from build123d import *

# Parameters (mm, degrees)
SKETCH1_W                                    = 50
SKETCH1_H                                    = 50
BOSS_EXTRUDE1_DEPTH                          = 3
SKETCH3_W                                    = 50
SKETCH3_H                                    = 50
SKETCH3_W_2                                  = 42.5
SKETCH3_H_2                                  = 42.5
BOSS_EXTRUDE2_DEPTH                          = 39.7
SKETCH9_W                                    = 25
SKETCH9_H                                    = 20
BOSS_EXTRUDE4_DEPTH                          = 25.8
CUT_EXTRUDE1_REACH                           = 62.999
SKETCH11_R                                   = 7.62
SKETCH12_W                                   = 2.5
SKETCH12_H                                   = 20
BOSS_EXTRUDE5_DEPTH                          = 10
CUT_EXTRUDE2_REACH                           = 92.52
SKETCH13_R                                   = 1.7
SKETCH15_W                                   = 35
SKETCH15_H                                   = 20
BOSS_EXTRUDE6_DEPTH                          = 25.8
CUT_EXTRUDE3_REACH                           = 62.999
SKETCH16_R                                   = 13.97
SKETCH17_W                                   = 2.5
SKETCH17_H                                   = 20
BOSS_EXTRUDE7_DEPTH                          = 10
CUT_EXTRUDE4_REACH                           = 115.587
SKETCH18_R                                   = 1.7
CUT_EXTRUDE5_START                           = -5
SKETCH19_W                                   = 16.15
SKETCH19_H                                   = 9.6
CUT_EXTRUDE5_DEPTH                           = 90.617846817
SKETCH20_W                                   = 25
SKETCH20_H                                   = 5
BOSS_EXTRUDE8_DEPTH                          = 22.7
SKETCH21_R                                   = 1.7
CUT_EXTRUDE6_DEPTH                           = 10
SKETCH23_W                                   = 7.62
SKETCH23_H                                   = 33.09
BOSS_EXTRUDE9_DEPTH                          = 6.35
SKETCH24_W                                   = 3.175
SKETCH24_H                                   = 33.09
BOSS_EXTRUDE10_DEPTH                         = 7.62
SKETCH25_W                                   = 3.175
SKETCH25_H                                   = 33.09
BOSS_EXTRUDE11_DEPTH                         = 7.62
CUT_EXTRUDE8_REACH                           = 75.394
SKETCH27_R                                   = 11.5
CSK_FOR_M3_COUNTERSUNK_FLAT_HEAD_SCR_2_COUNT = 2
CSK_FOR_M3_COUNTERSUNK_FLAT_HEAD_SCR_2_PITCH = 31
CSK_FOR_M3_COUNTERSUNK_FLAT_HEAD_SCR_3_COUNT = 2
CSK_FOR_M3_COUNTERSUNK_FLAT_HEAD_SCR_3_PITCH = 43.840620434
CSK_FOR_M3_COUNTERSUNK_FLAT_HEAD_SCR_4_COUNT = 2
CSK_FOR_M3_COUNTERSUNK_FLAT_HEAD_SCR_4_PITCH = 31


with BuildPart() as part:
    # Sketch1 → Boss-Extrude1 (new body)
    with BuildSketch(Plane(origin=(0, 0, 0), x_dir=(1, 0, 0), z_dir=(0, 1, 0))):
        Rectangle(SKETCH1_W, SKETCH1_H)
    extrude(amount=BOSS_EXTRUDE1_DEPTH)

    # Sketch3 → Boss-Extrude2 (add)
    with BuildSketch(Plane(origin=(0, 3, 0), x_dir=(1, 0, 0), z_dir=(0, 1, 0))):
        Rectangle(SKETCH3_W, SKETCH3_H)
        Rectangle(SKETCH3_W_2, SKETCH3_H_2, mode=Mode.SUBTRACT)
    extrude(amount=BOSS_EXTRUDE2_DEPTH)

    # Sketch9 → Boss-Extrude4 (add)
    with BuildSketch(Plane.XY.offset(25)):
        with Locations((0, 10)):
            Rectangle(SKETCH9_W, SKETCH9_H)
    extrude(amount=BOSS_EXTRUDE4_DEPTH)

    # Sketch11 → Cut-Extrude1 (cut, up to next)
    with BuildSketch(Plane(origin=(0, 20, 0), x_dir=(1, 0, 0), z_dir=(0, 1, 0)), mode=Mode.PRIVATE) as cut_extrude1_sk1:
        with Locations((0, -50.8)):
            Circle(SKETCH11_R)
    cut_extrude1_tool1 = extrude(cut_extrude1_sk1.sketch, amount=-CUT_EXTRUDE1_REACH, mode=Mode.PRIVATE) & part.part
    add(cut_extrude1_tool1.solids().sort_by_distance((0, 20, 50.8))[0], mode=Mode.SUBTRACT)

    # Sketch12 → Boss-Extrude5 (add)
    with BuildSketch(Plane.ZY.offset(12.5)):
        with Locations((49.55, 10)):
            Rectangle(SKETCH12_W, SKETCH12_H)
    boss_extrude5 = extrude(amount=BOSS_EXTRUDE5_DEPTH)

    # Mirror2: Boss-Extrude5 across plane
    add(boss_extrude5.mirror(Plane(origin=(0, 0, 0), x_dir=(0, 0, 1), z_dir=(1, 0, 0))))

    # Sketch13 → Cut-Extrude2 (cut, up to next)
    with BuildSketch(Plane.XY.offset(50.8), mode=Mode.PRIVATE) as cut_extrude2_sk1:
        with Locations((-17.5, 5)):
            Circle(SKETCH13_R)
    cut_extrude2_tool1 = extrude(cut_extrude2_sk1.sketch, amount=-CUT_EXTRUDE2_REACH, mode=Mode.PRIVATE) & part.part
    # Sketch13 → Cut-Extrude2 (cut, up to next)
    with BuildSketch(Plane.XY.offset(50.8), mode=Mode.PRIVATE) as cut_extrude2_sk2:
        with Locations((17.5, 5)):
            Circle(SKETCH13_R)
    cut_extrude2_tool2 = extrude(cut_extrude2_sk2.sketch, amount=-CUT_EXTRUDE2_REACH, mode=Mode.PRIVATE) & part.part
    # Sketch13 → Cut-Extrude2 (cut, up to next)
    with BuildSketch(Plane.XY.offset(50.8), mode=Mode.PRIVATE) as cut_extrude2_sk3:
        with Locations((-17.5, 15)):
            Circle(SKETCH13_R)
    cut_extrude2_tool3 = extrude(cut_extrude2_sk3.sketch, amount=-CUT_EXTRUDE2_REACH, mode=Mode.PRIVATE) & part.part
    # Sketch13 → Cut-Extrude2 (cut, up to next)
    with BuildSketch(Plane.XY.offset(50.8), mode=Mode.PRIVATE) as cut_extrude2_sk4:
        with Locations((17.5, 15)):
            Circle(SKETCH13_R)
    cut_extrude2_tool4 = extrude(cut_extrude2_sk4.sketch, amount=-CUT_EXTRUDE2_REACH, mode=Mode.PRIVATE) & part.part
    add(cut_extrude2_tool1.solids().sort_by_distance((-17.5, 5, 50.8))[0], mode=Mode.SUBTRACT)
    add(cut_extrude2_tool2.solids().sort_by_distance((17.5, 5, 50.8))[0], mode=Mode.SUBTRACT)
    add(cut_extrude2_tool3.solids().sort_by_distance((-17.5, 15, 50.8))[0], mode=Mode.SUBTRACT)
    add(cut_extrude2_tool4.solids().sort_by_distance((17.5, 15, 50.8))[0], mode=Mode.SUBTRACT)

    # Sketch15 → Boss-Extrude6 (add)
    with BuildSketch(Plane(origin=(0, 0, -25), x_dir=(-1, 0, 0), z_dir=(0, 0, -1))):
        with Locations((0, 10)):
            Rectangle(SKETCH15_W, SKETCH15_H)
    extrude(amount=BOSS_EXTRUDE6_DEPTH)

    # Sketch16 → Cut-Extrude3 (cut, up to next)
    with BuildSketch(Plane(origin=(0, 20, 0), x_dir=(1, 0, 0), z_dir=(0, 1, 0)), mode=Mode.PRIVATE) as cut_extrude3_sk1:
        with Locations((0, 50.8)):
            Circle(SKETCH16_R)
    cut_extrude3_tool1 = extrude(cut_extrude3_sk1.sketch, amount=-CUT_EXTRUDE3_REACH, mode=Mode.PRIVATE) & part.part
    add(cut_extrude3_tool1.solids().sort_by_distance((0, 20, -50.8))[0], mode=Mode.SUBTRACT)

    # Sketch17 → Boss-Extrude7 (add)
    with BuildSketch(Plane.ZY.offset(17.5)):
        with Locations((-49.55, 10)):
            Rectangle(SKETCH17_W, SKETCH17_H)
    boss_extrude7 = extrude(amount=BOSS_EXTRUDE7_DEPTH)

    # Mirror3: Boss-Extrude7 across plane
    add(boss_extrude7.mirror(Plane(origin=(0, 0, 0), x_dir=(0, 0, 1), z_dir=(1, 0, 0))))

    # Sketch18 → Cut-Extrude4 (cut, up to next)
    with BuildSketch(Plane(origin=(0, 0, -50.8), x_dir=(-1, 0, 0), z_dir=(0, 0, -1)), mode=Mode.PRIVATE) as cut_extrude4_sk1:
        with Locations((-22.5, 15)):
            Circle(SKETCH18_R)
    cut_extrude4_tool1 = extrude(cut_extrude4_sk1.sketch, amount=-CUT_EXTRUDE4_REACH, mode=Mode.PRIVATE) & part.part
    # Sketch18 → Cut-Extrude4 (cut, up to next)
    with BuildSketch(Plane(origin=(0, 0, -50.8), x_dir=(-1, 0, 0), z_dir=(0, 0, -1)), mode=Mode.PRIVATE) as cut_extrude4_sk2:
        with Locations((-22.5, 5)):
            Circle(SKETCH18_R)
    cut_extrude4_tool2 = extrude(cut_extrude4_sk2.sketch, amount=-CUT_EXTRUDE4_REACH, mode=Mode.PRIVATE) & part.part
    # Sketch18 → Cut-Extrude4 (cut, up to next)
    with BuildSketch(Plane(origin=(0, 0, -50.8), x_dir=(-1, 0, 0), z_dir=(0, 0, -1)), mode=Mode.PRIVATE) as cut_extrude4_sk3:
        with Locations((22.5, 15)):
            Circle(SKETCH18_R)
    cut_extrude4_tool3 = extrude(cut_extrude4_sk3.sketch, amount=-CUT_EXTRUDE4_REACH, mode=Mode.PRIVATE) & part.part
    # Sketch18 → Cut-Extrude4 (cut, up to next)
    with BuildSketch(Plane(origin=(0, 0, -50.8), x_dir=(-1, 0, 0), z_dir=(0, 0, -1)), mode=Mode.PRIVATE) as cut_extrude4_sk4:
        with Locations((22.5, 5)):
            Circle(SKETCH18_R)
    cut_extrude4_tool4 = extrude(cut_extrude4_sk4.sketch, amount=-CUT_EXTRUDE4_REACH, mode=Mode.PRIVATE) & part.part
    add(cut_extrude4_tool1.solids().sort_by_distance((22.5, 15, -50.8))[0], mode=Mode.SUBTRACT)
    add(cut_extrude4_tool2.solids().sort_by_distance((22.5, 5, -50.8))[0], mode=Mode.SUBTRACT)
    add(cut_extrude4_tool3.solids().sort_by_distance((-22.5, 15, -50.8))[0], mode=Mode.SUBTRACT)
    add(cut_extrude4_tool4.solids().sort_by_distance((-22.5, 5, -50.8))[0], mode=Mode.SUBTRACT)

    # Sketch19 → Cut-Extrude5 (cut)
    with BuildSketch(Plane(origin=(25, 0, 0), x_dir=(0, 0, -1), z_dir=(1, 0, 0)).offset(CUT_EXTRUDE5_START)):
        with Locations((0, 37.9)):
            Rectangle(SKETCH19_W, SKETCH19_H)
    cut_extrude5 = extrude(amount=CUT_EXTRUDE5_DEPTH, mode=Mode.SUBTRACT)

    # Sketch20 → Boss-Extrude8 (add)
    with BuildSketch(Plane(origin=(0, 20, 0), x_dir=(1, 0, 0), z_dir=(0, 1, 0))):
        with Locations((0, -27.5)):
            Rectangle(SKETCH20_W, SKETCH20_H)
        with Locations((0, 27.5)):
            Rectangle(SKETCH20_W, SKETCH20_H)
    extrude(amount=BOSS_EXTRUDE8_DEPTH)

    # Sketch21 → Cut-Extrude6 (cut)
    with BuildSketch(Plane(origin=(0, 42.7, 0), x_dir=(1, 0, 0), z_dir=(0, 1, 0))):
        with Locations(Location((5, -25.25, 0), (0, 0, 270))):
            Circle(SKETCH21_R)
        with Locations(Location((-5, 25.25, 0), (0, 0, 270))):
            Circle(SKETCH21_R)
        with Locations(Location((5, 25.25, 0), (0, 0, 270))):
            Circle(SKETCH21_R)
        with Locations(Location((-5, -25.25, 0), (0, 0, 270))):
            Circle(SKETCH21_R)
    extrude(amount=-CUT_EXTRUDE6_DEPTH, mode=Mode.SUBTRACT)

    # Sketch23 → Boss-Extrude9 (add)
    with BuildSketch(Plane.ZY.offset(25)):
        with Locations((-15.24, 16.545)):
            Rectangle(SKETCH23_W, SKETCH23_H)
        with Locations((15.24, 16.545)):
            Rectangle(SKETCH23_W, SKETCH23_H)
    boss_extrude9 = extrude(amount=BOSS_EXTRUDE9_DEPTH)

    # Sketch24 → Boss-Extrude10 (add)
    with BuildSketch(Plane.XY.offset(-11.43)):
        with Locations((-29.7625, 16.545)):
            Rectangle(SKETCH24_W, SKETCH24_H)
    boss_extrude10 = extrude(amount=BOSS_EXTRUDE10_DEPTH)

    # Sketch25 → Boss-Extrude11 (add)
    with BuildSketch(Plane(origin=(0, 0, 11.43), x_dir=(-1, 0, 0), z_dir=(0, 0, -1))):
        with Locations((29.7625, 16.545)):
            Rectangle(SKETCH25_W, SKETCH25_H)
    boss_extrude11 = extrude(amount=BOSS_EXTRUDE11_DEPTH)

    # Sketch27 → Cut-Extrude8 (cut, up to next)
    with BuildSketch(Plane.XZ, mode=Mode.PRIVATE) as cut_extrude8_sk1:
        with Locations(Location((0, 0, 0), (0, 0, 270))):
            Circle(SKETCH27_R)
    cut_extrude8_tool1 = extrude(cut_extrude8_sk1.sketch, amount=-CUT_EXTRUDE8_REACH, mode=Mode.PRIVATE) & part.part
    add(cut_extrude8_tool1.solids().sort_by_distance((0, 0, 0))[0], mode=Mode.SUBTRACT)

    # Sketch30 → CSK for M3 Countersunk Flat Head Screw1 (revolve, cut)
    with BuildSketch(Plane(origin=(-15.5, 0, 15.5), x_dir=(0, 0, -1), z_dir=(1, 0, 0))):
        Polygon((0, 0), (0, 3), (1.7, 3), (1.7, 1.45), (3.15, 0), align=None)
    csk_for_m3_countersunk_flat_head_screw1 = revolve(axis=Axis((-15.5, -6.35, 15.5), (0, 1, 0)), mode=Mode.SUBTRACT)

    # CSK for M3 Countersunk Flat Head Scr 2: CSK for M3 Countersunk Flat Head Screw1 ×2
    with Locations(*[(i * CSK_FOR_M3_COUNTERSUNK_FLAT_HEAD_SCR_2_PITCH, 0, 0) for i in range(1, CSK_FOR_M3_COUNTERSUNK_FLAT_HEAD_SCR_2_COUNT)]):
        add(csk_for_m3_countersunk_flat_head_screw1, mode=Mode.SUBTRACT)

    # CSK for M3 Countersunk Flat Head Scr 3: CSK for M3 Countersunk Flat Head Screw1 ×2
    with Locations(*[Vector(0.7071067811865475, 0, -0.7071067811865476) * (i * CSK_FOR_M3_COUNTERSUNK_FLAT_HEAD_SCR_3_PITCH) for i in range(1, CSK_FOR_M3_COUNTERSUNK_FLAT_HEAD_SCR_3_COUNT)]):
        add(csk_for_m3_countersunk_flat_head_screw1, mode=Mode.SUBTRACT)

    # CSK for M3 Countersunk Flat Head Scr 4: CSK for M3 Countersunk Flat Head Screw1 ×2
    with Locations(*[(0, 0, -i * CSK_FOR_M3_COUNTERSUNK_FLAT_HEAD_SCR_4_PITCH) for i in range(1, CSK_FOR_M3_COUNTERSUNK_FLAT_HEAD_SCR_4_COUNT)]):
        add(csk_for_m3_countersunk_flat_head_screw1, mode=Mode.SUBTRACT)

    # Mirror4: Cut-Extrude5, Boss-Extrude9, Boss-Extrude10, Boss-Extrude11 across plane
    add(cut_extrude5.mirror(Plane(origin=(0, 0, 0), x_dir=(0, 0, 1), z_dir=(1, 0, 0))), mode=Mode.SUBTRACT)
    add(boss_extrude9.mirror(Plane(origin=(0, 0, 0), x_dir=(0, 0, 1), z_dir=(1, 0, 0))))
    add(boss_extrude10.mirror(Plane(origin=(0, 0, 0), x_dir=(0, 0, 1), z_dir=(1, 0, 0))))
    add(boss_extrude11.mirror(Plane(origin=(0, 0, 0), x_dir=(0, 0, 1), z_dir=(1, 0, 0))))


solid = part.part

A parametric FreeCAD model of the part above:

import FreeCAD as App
import Part
import Sketcher
Q = App.Units.Quantity

doc = App.newDocument("Part")
params = doc.addObject("Spreadsheet::Sheet", "Params")
for row, (alias, value) in enumerate([
    ("sketch1_width", "50 mm"),
    ("pad1_length", "3 mm"),
    ("sketch2_width", "50 mm"),
    ("sketch2_width2", "42.5 mm"),
    ("pad2_length", "39.7 mm"),
    ("sketch3_width", "25 mm"),
    ("sketch3_height", "20 mm"),
    ("pad3_length", "25.8 mm"),
    ("sketch4_diameter", "15.24 mm"),
    ("sketch5_width", "20 mm"),
    ("sketch5_height", "2.5 mm"),
    ("pad4_length", "10 mm"),
    ("sketch6_diameter", "3.4 mm"),
    ("sketch7_diameter", "3.4 mm"),
    ("sketch8_diameter", "3.4 mm"),
    ("sketch9_diameter", "3.4 mm"),
    ("sketch10_width", "35 mm"),
    ("sketch10_height", "20 mm"),
    ("pad5_length", "25.8 mm"),
    ("sketch11_diameter", "27.94 mm"),
    ("sketch12_width", "20 mm"),
    ("sketch12_height", "2.5 mm"),
    ("pad6_length", "10 mm"),
    ("sketch13_diameter", "3.4 mm"),
    ("sketch14_diameter", "3.4 mm"),
    ("sketch15_diameter", "3.4 mm"),
    ("sketch16_diameter", "3.4 mm"),
    ("sketch17_width", "9.6 mm"),
    ("sketch17_height", "16.15 mm"),
    ("pocket11_length", "90.617847 mm"),
    ("sketch18_width", "25 mm"),
    ("sketch18_height", "5 mm"),
    ("pad7_length", "22.7 mm"),
    ("sketch19_diameter", "3.4 mm"),
    ("pocket12_length", "10 mm"),
    ("sketch20_width", "33.09 mm"),
    ("sketch20_height", "7.62 mm"),
    ("pad8_length", "6.35 mm"),
    ("sketch21_height", "33.09 mm"),
    ("pad9_length", "7.62 mm"),
    ("sketch22_height", "33.09 mm"),
    ("pad10_length", "7.62 mm"),
    ("sketch23_diameter", "23 mm"),
    ("sketch24_width", "3 mm"),
    ("sketch24_height", "1.7 mm"),
    ("sketch24_width2", "1.55 mm"),
    ("groove_angle", "360 deg"),
    ("linearpattern_pitch", "31 mm"),
    ("linearpattern2_pitch", "43.84062 mm"),
    ("linearpattern3_pitch", "31 mm"),
], start=1):
    params.set(f"A{row}", alias)
    params.set(f"B{row}", "=" + value)
    params.setAlias(f"B{row}", alias)

body = doc.addObject("PartDesign::Body", "Body")

sketch1 = doc.addObject("Sketcher::SketchObject", "Sketch")
body.addObject(sketch1)
sketch1.AttachmentSupport = (doc.XZ_Plane, [""])
sketch1.MapMode = "FlatFace"
sketch1.addGeometry([
    Part.LineSegment(App.Vector(-25, -25, 0), App.Vector(-25, 25, 0)),
    Part.LineSegment(App.Vector(-25, 25, 0), App.Vector(25, 25, 0)),
    Part.LineSegment(App.Vector(25, 25, 0), App.Vector(25, -25, 0)),
    Part.LineSegment(App.Vector(25, -25, 0), App.Vector(-25, -25, 0)),
], False)
sketch1.addConstraint([
    Sketcher.Constraint("Coincident", 0, 2, 1, 1),
    Sketcher.Constraint("Coincident", 1, 2, 2, 1),
    Sketcher.Constraint("Coincident", 2, 2, 3, 1),
    Sketcher.Constraint("Coincident", 3, 2, 0, 1),
    Sketcher.Constraint("Vertical", 0),
    Sketcher.Constraint("Horizontal", 1),
    Sketcher.Constraint("Vertical", 2),
    Sketcher.Constraint("Horizontal", 3),
    Sketcher.Constraint("Symmetric", 0, 2, 2, 2, -1, 1),
    Sketcher.Constraint("Equal", 3, 0),
    Sketcher.Constraint("DistanceX", 1, 1, 1, 2, Q("50 mm")),
])
sketch1.setExpression("Constraints[10]", "Params.sketch1_width")
pad1 = doc.addObject("PartDesign::Pad", "Pad")
body.addObject(pad1)
pad1.Profile = sketch1
pad1.setExpression("Length", "Params.pad1_length")
pad1.Reversed = True

sketch2 = doc.addObject("Sketcher::SketchObject", "Sketch001")
body.addObject(sketch2)
sketch2.AttachmentSupport = (doc.XZ_Plane, [""])
sketch2.MapMode = "FlatFace"
sketch2.AttachmentOffset = App.Placement(App.Vector(0, 0, -3), App.Rotation())
sketch2.addGeometry([
    Part.LineSegment(App.Vector(-25, -25, 0), App.Vector(-25, 25, 0)),
    Part.LineSegment(App.Vector(-25, 25, 0), App.Vector(25, 25, 0)),
    Part.LineSegment(App.Vector(25, 25, 0), App.Vector(25, -25, 0)),
    Part.LineSegment(App.Vector(25, -25, 0), App.Vector(-25, -25, 0)),
    Part.LineSegment(App.Vector(21.25, 21.25, 0), App.Vector(-21.25, 21.25, 0)),
    Part.LineSegment(App.Vector(-21.25, 21.25, 0), App.Vector(-21.25, -21.25, 0)),
    Part.LineSegment(App.Vector(-21.25, -21.25, 0), App.Vector(21.25, -21.25, 0)),
    Part.LineSegment(App.Vector(21.25, -21.25, 0), App.Vector(21.25, 21.25, 0)),
], False)
sketch2.addConstraint([
    Sketcher.Constraint("Coincident", 0, 2, 1, 1),
    Sketcher.Constraint("Coincident", 1, 2, 2, 1),
    Sketcher.Constraint("Coincident", 2, 2, 3, 1),
    Sketcher.Constraint("Coincident", 3, 2, 0, 1),
    Sketcher.Constraint("Coincident", 4, 2, 5, 1),
    Sketcher.Constraint("Coincident", 5, 2, 6, 1),
    Sketcher.Constraint("Coincident", 6, 2, 7, 1),
    Sketcher.Constraint("Coincident", 7, 2, 4, 1),
    Sketcher.Constraint("Vertical", 0),
    Sketcher.Constraint("Horizontal", 1),
    Sketcher.Constraint("Vertical", 2),
    Sketcher.Constraint("Horizontal", 3),
    Sketcher.Constraint("Horizontal", 4),
    Sketcher.Constraint("Vertical", 5),
    Sketcher.Constraint("Horizontal", 6),
    Sketcher.Constraint("Vertical", 7),
    Sketcher.Constraint("Symmetric", 0, 2, 2, 2, -1, 1),
    Sketcher.Constraint("Symmetric", 4, 2, 6, 2, -1, 1),
    Sketcher.Constraint("Equal", 3, 0),
    Sketcher.Constraint("Equal", 6, 5),
    Sketcher.Constraint("DistanceX", 1, 1, 1, 2, Q("50 mm")),
    Sketcher.Constraint("DistanceX", 4, 2, 4, 1, Q("42.5 mm")),
])
sketch2.setExpression("Constraints[20]", "Params.sketch2_width")
sketch2.setExpression("Constraints[21]", "Params.sketch2_width2")
pad2 = doc.addObject("PartDesign::Pad", "Pad001")
body.addObject(pad2)
pad2.Profile = sketch2
pad2.setExpression("Length", "Params.pad2_length")
pad2.Reversed = True

sketch3 = doc.addObject("Sketcher::SketchObject", "Sketch002")
body.addObject(sketch3)
sketch3.AttachmentSupport = (doc.XY_Plane, [""])
sketch3.MapMode = "FlatFace"
sketch3.AttachmentOffset = App.Placement(App.Vector(0, 0, 25), App.Rotation())
sketch3.addGeometry([
    Part.LineSegment(App.Vector(-12.5, 20, 0), App.Vector(-12.5, 0, 0)),
    Part.LineSegment(App.Vector(-12.5, 0, 0), App.Vector(12.5, 0, 0)),
    Part.LineSegment(App.Vector(12.5, 0, 0), App.Vector(12.5, 20, 0)),
    Part.LineSegment(App.Vector(12.5, 20, 0), App.Vector(-12.5, 20, 0)),
], False)
sketch3.addConstraint([
    Sketcher.Constraint("Coincident", 0, 2, 1, 1),
    Sketcher.Constraint("Coincident", 1, 2, 2, 1),
    Sketcher.Constraint("Coincident", 2, 2, 3, 1),
    Sketcher.Constraint("Coincident", 3, 2, 0, 1),
    Sketcher.Constraint("Vertical", 0),
    Sketcher.Constraint("Horizontal", 1),
    Sketcher.Constraint("Vertical", 2),
    Sketcher.Constraint("Horizontal", 3),
    Sketcher.Constraint("Symmetric", 0, 2, 1, 2, -1, 1),
    Sketcher.Constraint("DistanceX", 1, 1, 1, 2, Q("25 mm")),
    Sketcher.Constraint("DistanceY", 0, 2, 0, 1, Q("20 mm")),
])
sketch3.setExpression("Constraints[9]", "Params.sketch3_width")
sketch3.setExpression("Constraints[10]", "Params.sketch3_height")
pad3 = doc.addObject("PartDesign::Pad", "Pad002")
body.addObject(pad3)
pad3.Profile = sketch3
pad3.setExpression("Length", "Params.pad3_length")

sketch4 = doc.addObject("Sketcher::SketchObject", "Sketch003")
body.addObject(sketch4)
sketch4.AttachmentSupport = (doc.XZ_Plane, [""])
sketch4.MapMode = "FlatFace"
sketch4.AttachmentOffset = App.Placement(App.Vector(0, 0, -20), App.Rotation())
sketch4.addGeometry(Part.Circle(App.Vector(0, 50.8, 0), App.Vector(0, 0, 1), 7.62), False)
sketch4.addConstraint([
    Sketcher.Constraint("PointOnObject", 0, 3, -2),
    Sketcher.Constraint("Diameter", 0, Q("15.24 mm")),
    Sketcher.Constraint("DistanceY", -1, 1, 0, 3, Q("50.8 mm")),
])
sketch4.setExpression("Constraints[1]", "Params.sketch4_diameter")
pocket1 = doc.addObject("PartDesign::Pocket", "Pocket")
body.addObject(pocket1)
pocket1.Profile = sketch4
pocket1.Type = "UpToFirst"
pocket1.Reversed = True

sketch5 = doc.addObject("Sketcher::SketchObject", "Sketch004")
body.addObject(sketch5)
sketch5.AttachmentSupport = (doc.YZ_Plane, [""])
sketch5.MapMode = "FlatFace"
sketch5.AttachmentOffset = App.Placement(App.Vector(0, 0, -12.5), App.Rotation())
sketch5.addGeometry([
    Part.LineSegment(App.Vector(20, 48.3, 0), App.Vector(0, 48.3, 0)),
    Part.LineSegment(App.Vector(0, 48.3, 0), App.Vector(0, 50.8, 0)),
    Part.LineSegment(App.Vector(0, 50.8, 0), App.Vector(20, 50.8, 0)),
    Part.LineSegment(App.Vector(20, 50.8, 0), App.Vector(20, 48.3, 0)),
], False)
sketch5.addConstraint([
    Sketcher.Constraint("Coincident", 0, 2, 1, 1),
    Sketcher.Constraint("Coincident", 1, 2, 2, 1),
    Sketcher.Constraint("Coincident", 2, 2, 3, 1),
    Sketcher.Constraint("Coincident", 3, 2, 0, 1),
    Sketcher.Constraint("Horizontal", 0),
    Sketcher.Constraint("Vertical", 1),
    Sketcher.Constraint("Horizontal", 2),
    Sketcher.Constraint("Vertical", 3),
    Sketcher.Constraint("PointOnObject", 0, 2, -2),
    Sketcher.Constraint("DistanceX", 0, 2, 0, 1, Q("20 mm")),
    Sketcher.Constraint("DistanceY", 1, 1, 1, 2, Q("2.5 mm")),
    Sketcher.Constraint("DistanceY", -1, 1, 0, 2, Q("48.3 mm")),
])
sketch5.setExpression("Constraints[9]", "Params.sketch5_width")
sketch5.setExpression("Constraints[10]", "Params.sketch5_height")
pad4 = doc.addObject("PartDesign::Pad", "Pad003")
body.addObject(pad4)
pad4.Profile = sketch5
pad4.setExpression("Length", "Params.pad4_length")
pad4.Reversed = True
doc.recompute()

mirrored = doc.addObject("PartDesign::Mirrored", "Mirrored")
body.addObject(mirrored)
mirrored.Originals = [pad4]
mirrored.MirrorPlane = (doc.YZ_Plane, [""])
body.Tip = mirrored

sketch6 = doc.addObject("Sketcher::SketchObject", "Sketch005")
body.addObject(sketch6)
sketch6.AttachmentSupport = (doc.XY_Plane, [""])
sketch6.MapMode = "FlatFace"
sketch6.AttachmentOffset = App.Placement(App.Vector(0, 0, 50.8), App.Rotation())
sketch6.addGeometry(Part.Circle(App.Vector(-17.5, 5, 0), App.Vector(0, 0, 1), 1.7), False)
sketch6.addConstraint([
    Sketcher.Constraint("Diameter", 0, Q("3.4 mm")),
    Sketcher.Constraint("DistanceY", -1, 1, 0, 3, Q("5 mm")),
    Sketcher.Constraint("DistanceX", 0, 3, -1, 1, Q("17.5 mm")),
])
sketch6.setExpression("Constraints[0]", "Params.sketch6_diameter")
pocket2 = doc.addObject("PartDesign::Pocket", "Pocket001")
body.addObject(pocket2)
pocket2.Profile = sketch6
pocket2.Type = "UpToFirst"

sketch7 = doc.addObject("Sketcher::SketchObject", "Sketch006")
body.addObject(sketch7)
sketch7.AttachmentSupport = (doc.XY_Plane, [""])
sketch7.MapMode = "FlatFace"
sketch7.AttachmentOffset = App.Placement(App.Vector(0, 0, 50.8), App.Rotation())
sketch7.addGeometry(Part.Circle(App.Vector(17.5, 5, 0), App.Vector(0, 0, 1), 1.7), False)
sketch7.addConstraint([
    Sketcher.Constraint("Diameter", 0, Q("3.4 mm")),
    Sketcher.Constraint("DistanceY", -1, 1, 0, 3, Q("5 mm")),
    Sketcher.Constraint("DistanceX", -1, 1, 0, 3, Q("17.5 mm")),
])
sketch7.setExpression("Constraints[0]", "Params.sketch7_diameter")
pocket3 = doc.addObject("PartDesign::Pocket", "Pocket002")
body.addObject(pocket3)
pocket3.Profile = sketch7
pocket3.Type = "UpToFirst"

sketch8 = doc.addObject("Sketcher::SketchObject", "Sketch007")
body.addObject(sketch8)
sketch8.AttachmentSupport = (doc.XY_Plane, [""])
sketch8.MapMode = "FlatFace"
sketch8.AttachmentOffset = App.Placement(App.Vector(0, 0, 50.8), App.Rotation())
sketch8.addGeometry(Part.Circle(App.Vector(-17.5, 15, 0), App.Vector(0, 0, 1), 1.7), False)
sketch8.addConstraint([
    Sketcher.Constraint("Diameter", 0, Q("3.4 mm")),
    Sketcher.Constraint("DistanceY", -1, 1, 0, 3, Q("15 mm")),
    Sketcher.Constraint("DistanceX", 0, 3, -1, 1, Q("17.5 mm")),
])
sketch8.setExpression("Constraints[0]", "Params.sketch8_diameter")
pocket4 = doc.addObject("PartDesign::Pocket", "Pocket003")
body.addObject(pocket4)
pocket4.Profile = sketch8
pocket4.Type = "UpToFirst"

sketch9 = doc.addObject("Sketcher::SketchObject", "Sketch008")
body.addObject(sketch9)
sketch9.AttachmentSupport = (doc.XY_Plane, [""])
sketch9.MapMode = "FlatFace"
sketch9.AttachmentOffset = App.Placement(App.Vector(0, 0, 50.8), App.Rotation())
sketch9.addGeometry(Part.Circle(App.Vector(17.5, 15, 0), App.Vector(0, 0, 1), 1.7), False)
sketch9.addConstraint([
    Sketcher.Constraint("Diameter", 0, Q("3.4 mm")),
    Sketcher.Constraint("DistanceY", -1, 1, 0, 3, Q("15 mm")),
    Sketcher.Constraint("DistanceX", -1, 1, 0, 3, Q("17.5 mm")),
])
sketch9.setExpression("Constraints[0]", "Params.sketch9_diameter")
pocket5 = doc.addObject("PartDesign::Pocket", "Pocket004")
body.addObject(pocket5)
pocket5.Profile = sketch9
pocket5.Type = "UpToFirst"

sketch10 = doc.addObject("Sketcher::SketchObject", "Sketch009")
body.addObject(sketch10)
sketch10.AttachmentSupport = (doc.XY_Plane, [""])
sketch10.MapMode = "FlatFace"
sketch10.AttachmentOffset = App.Placement(App.Vector(0, 0, -25), App.Rotation())
sketch10.addGeometry([
    Part.LineSegment(App.Vector(17.5, 20, 0), App.Vector(17.5, 0, 0)),
    Part.LineSegment(App.Vector(17.5, 0, 0), App.Vector(-17.5, 0, 0)),
    Part.LineSegment(App.Vector(-17.5, 0, 0), App.Vector(-17.5, 20, 0)),
    Part.LineSegment(App.Vector(-17.5, 20, 0), App.Vector(17.5, 20, 0)),
], False)
sketch10.addConstraint([
    Sketcher.Constraint("Coincident", 0, 2, 1, 1),
    Sketcher.Constraint("Coincident", 1, 2, 2, 1),
    Sketcher.Constraint("Coincident", 2, 2, 3, 1),
    Sketcher.Constraint("Coincident", 3, 2, 0, 1),
    Sketcher.Constraint("Vertical", 0),
    Sketcher.Constraint("Horizontal", 1),
    Sketcher.Constraint("Vertical", 2),
    Sketcher.Constraint("Horizontal", 3),
    Sketcher.Constraint("Symmetric", 0, 2, 1, 2, -1, 1),
    Sketcher.Constraint("DistanceX", 1, 2, 1, 1, Q("35 mm")),
    Sketcher.Constraint("DistanceY", 0, 2, 0, 1, Q("20 mm")),
])
sketch10.setExpression("Constraints[9]", "Params.sketch10_width")
sketch10.setExpression("Constraints[10]", "Params.sketch10_height")
pad5 = doc.addObject("PartDesign::Pad", "Pad004")
body.addObject(pad5)
pad5.Profile = sketch10
pad5.setExpression("Length", "Params.pad5_length")
pad5.Reversed = True

sketch11 = doc.addObject("Sketcher::SketchObject", "Sketch010")
body.addObject(sketch11)
sketch11.AttachmentSupport = (doc.XZ_Plane, [""])
sketch11.MapMode = "FlatFace"
sketch11.AttachmentOffset = App.Placement(App.Vector(0, 0, -20), App.Rotation())
sketch11.addGeometry(Part.Circle(App.Vector(0, -50.8, 0), App.Vector(0, 0, 1), 13.97), False)
sketch11.addConstraint([
    Sketcher.Constraint("PointOnObject", 0, 3, -2),
    Sketcher.Constraint("Diameter", 0, Q("27.94 mm")),
    Sketcher.Constraint("DistanceY", 0, 3, -1, 1, Q("50.8 mm")),
])
sketch11.setExpression("Constraints[1]", "Params.sketch11_diameter")
pocket6 = doc.addObject("PartDesign::Pocket", "Pocket005")
body.addObject(pocket6)
pocket6.Profile = sketch11
pocket6.Type = "UpToFirst"
pocket6.Reversed = True

sketch12 = doc.addObject("Sketcher::SketchObject", "Sketch011")
body.addObject(sketch12)
sketch12.AttachmentSupport = (doc.YZ_Plane, [""])
sketch12.MapMode = "FlatFace"
sketch12.AttachmentOffset = App.Placement(App.Vector(0, 0, -17.5), App.Rotation())
sketch12.addGeometry([
    Part.LineSegment(App.Vector(20, -50.8, 0), App.Vector(0, -50.8, 0)),
    Part.LineSegment(App.Vector(0, -50.8, 0), App.Vector(0, -48.3, 0)),
    Part.LineSegment(App.Vector(0, -48.3, 0), App.Vector(20, -48.3, 0)),
    Part.LineSegment(App.Vector(20, -48.3, 0), App.Vector(20, -50.8, 0)),
], False)
sketch12.addConstraint([
    Sketcher.Constraint("Coincident", 0, 2, 1, 1),
    Sketcher.Constraint("Coincident", 1, 2, 2, 1),
    Sketcher.Constraint("Coincident", 2, 2, 3, 1),
    Sketcher.Constraint("Coincident", 3, 2, 0, 1),
    Sketcher.Constraint("Horizontal", 0),
    Sketcher.Constraint("Vertical", 1),
    Sketcher.Constraint("Horizontal", 2),
    Sketcher.Constraint("Vertical", 3),
    Sketcher.Constraint("PointOnObject", 0, 2, -2),
    Sketcher.Constraint("DistanceX", 0, 2, 0, 1, Q("20 mm")),
    Sketcher.Constraint("DistanceY", 1, 1, 1, 2, Q("2.5 mm")),
    Sketcher.Constraint("DistanceY", 0, 2, -1, 1, Q("50.8 mm")),
])
sketch12.setExpression("Constraints[9]", "Params.sketch12_width")
sketch12.setExpression("Constraints[10]", "Params.sketch12_height")
pad6 = doc.addObject("PartDesign::Pad", "Pad005")
body.addObject(pad6)
pad6.Profile = sketch12
pad6.setExpression("Length", "Params.pad6_length")
pad6.Reversed = True
doc.recompute()

mirrored2 = doc.addObject("PartDesign::Mirrored", "Mirrored001")
body.addObject(mirrored2)
mirrored2.Originals = [pad6]
mirrored2.MirrorPlane = (doc.YZ_Plane, [""])
body.Tip = mirrored2

sketch13 = doc.addObject("Sketcher::SketchObject", "Sketch012")
body.addObject(sketch13)
sketch13.AttachmentSupport = (doc.XY_Plane, [""])
sketch13.MapMode = "FlatFace"
sketch13.AttachmentOffset = App.Placement(App.Vector(0, 0, -50.8), App.Rotation())
sketch13.addGeometry(Part.Circle(App.Vector(22.5, 15, 0), App.Vector(0, 0, 1), 1.7), False)
sketch13.addConstraint([
    Sketcher.Constraint("Diameter", 0, Q("3.4 mm")),
    Sketcher.Constraint("DistanceY", -1, 1, 0, 3, Q("15 mm")),
    Sketcher.Constraint("DistanceX", -1, 1, 0, 3, Q("22.5 mm")),
])
sketch13.setExpression("Constraints[0]", "Params.sketch13_diameter")
pocket7 = doc.addObject("PartDesign::Pocket", "Pocket006")
body.addObject(pocket7)
pocket7.Profile = sketch13
pocket7.Type = "UpToFirst"
pocket7.Reversed = True

sketch14 = doc.addObject("Sketcher::SketchObject", "Sketch013")
body.addObject(sketch14)
sketch14.AttachmentSupport = (doc.XY_Plane, [""])
sketch14.MapMode = "FlatFace"
sketch14.AttachmentOffset = App.Placement(App.Vector(0, 0, -50.8), App.Rotation())
sketch14.addGeometry(Part.Circle(App.Vector(22.5, 5, 0), App.Vector(0, 0, 1), 1.7), False)
sketch14.addConstraint([
    Sketcher.Constraint("Diameter", 0, Q("3.4 mm")),
    Sketcher.Constraint("DistanceY", -1, 1, 0, 3, Q("5 mm")),
    Sketcher.Constraint("DistanceX", -1, 1, 0, 3, Q("22.5 mm")),
])
sketch14.setExpression("Constraints[0]", "Params.sketch14_diameter")
pocket8 = doc.addObject("PartDesign::Pocket", "Pocket007")
body.addObject(pocket8)
pocket8.Profile = sketch14
pocket8.Type = "UpToFirst"
pocket8.Reversed = True

sketch15 = doc.addObject("Sketcher::SketchObject", "Sketch014")
body.addObject(sketch15)
sketch15.AttachmentSupport = (doc.XY_Plane, [""])
sketch15.MapMode = "FlatFace"
sketch15.AttachmentOffset = App.Placement(App.Vector(0, 0, -50.8), App.Rotation())
sketch15.addGeometry(Part.Circle(App.Vector(-22.5, 15, 0), App.Vector(0, 0, 1), 1.7), False)
sketch15.addConstraint([
    Sketcher.Constraint("Diameter", 0, Q("3.4 mm")),
    Sketcher.Constraint("DistanceY", -1, 1, 0, 3, Q("15 mm")),
    Sketcher.Constraint("DistanceX", 0, 3, -1, 1, Q("22.5 mm")),
])
sketch15.setExpression("Constraints[0]", "Params.sketch15_diameter")
pocket9 = doc.addObject("PartDesign::Pocket", "Pocket008")
body.addObject(pocket9)
pocket9.Profile = sketch15
pocket9.Type = "UpToFirst"
pocket9.Reversed = True

sketch16 = doc.addObject("Sketcher::SketchObject", "Sketch015")
body.addObject(sketch16)
sketch16.AttachmentSupport = (doc.XY_Plane, [""])
sketch16.MapMode = "FlatFace"
sketch16.AttachmentOffset = App.Placement(App.Vector(0, 0, -50.8), App.Rotation())
sketch16.addGeometry(Part.Circle(App.Vector(-22.5, 5, 0), App.Vector(0, 0, 1), 1.7), False)
sketch16.addConstraint([
    Sketcher.Constraint("Diameter", 0, Q("3.4 mm")),
    Sketcher.Constraint("DistanceY", -1, 1, 0, 3, Q("5 mm")),
    Sketcher.Constraint("DistanceX", 0, 3, -1, 1, Q("22.5 mm")),
])
sketch16.setExpression("Constraints[0]", "Params.sketch16_diameter")
pocket10 = doc.addObject("PartDesign::Pocket", "Pocket009")
body.addObject(pocket10)
pocket10.Profile = sketch16
pocket10.Type = "UpToFirst"
pocket10.Reversed = True

sketch17 = doc.addObject("Sketcher::SketchObject", "Sketch016")
body.addObject(sketch17)
sketch17.AttachmentSupport = (doc.YZ_Plane, [""])
sketch17.MapMode = "FlatFace"
sketch17.AttachmentOffset = App.Placement(App.Vector(0, 0, 20), App.Rotation())
sketch17.addGeometry([
    Part.LineSegment(App.Vector(42.7, 8.075, 0), App.Vector(33.1, 8.075, 0)),
    Part.LineSegment(App.Vector(33.1, 8.075, 0), App.Vector(33.1, -8.075, 0)),
    Part.LineSegment(App.Vector(33.1, -8.075, 0), App.Vector(42.7, -8.075, 0)),
    Part.LineSegment(App.Vector(42.7, -8.075, 0), App.Vector(42.7, 8.075, 0)),
], False)
sketch17.addConstraint([
    Sketcher.Constraint("Coincident", 0, 2, 1, 1),
    Sketcher.Constraint("Coincident", 1, 2, 2, 1),
    Sketcher.Constraint("Coincident", 2, 2, 3, 1),
    Sketcher.Constraint("Coincident", 3, 2, 0, 1),
    Sketcher.Constraint("Horizontal", 0),
    Sketcher.Constraint("Vertical", 1),
    Sketcher.Constraint("Horizontal", 2),
    Sketcher.Constraint("Vertical", 3),
    Sketcher.Constraint("DistanceX", 0, 2, 0, 1, Q("9.6 mm")),
    Sketcher.Constraint("DistanceY", 1, 2, 1, 1, Q("16.15 mm")),
    Sketcher.Constraint("DistanceX", -1, 1, 0, 2, Q("33.1 mm")),
    Sketcher.Constraint("DistanceY", -1, 1, 0, 2, Q("8.075 mm")),
])
sketch17.setExpression("Constraints[8]", "Params.sketch17_width")
sketch17.setExpression("Constraints[9]", "Params.sketch17_height")
pocket11 = doc.addObject("PartDesign::Pocket", "Pocket010")
body.addObject(pocket11)
pocket11.Profile = sketch17
pocket11.setExpression("Length", "Params.pocket11_length")
pocket11.Reversed = True

sketch18 = doc.addObject("Sketcher::SketchObject", "Sketch017")
body.addObject(sketch18)
sketch18.AttachmentSupport = (doc.XZ_Plane, [""])
sketch18.MapMode = "FlatFace"
sketch18.AttachmentOffset = App.Placement(App.Vector(0, 0, -20), App.Rotation())
sketch18.addGeometry([
    Part.LineSegment(App.Vector(-12.5, 25, 0), App.Vector(-12.5, 30, 0)),
    Part.LineSegment(App.Vector(-12.5, 30, 0), App.Vector(12.5, 30, 0)),
    Part.LineSegment(App.Vector(12.5, 30, 0), App.Vector(12.5, 25, 0)),
    Part.LineSegment(App.Vector(12.5, 25, 0), App.Vector(-12.5, 25, 0)),
    Part.LineSegment(App.Vector(-12.5, -30, 0), App.Vector(-12.5, -25, 0)),
    Part.LineSegment(App.Vector(-12.5, -25, 0), App.Vector(12.5, -25, 0)),
    Part.LineSegment(App.Vector(12.5, -25, 0), App.Vector(12.5, -30, 0)),
    Part.LineSegment(App.Vector(12.5, -30, 0), App.Vector(-12.5, -30, 0)),
], False)
sketch18.addConstraint([
    Sketcher.Constraint("Coincident", 0, 2, 1, 1),
    Sketcher.Constraint("Coincident", 1, 2, 2, 1),
    Sketcher.Constraint("Coincident", 2, 2, 3, 1),
    Sketcher.Constraint("Coincident", 3, 2, 0, 1),
    Sketcher.Constraint("Coincident", 4, 2, 5, 1),
    Sketcher.Constraint("Coincident", 5, 2, 6, 1),
    Sketcher.Constraint("Coincident", 6, 2, 7, 1),
    Sketcher.Constraint("Coincident", 7, 2, 4, 1),
    Sketcher.Constraint("Vertical", 0),
    Sketcher.Constraint("Horizontal", 1),
    Sketcher.Constraint("Vertical", 2),
    Sketcher.Constraint("Horizontal", 3),
    Sketcher.Constraint("Vertical", 4),
    Sketcher.Constraint("Horizontal", 5),
    Sketcher.Constraint("Vertical", 6),
    Sketcher.Constraint("Horizontal", 7),
    Sketcher.Constraint("Symmetric", 2, 2, 4, 2, -1, 1),
    Sketcher.Constraint("Symmetric", 0, 2, 6, 2, -1, 1),
    Sketcher.Constraint("Vertical", 3, 2, 4, 2),
    Sketcher.Constraint("DistanceX", 1, 1, 1, 2, Q("25 mm")),
    Sketcher.Constraint("DistanceY", 0, 1, 0, 2, Q("5 mm")),
    Sketcher.Constraint("DistanceY", -1, 1, 0, 2, Q("30 mm")),
])
sketch18.setExpression("Constraints[19]", "Params.sketch18_width")
sketch18.setExpression("Constraints[20]", "Params.sketch18_height")
pad7 = doc.addObject("PartDesign::Pad", "Pad006")
body.addObject(pad7)
pad7.Profile = sketch18
pad7.setExpression("Length", "Params.pad7_length")
pad7.Reversed = True

sketch19 = doc.addObject("Sketcher::SketchObject", "Sketch018")
body.addObject(sketch19)
sketch19.AttachmentSupport = (doc.XZ_Plane, [""])
sketch19.MapMode = "FlatFace"
sketch19.AttachmentOffset = App.Placement(App.Vector(0, 0, -42.7), App.Rotation())
sketch19.addGeometry([
    Part.Circle(App.Vector(5, 25.25, 0), App.Vector(0, 0, 1), 1.7),
    Part.Circle(App.Vector(-5, -25.25, 0), App.Vector(0, 0, 1), 1.7),
    Part.Circle(App.Vector(5, -25.25, 0), App.Vector(0, 0, 1), 1.7),
    Part.Circle(App.Vector(-5, 25.25, 0), App.Vector(0, 0, 1), 1.7),
], False)
sketch19.addConstraint([
    Sketcher.Constraint("Equal", 0, 1),
    Sketcher.Constraint("Equal", 1, 2),
    Sketcher.Constraint("Equal", 2, 3),
    Sketcher.Constraint("Symmetric", 0, 3, 1, 3, -1, 1),
    Sketcher.Constraint("Symmetric", 2, 3, 3, 3, -1, 1),
    Sketcher.Constraint("Symmetric", 1, 3, 2, 3, -2),
    Sketcher.Constraint("Diameter", 0, Q("3.4 mm")),
    Sketcher.Constraint("DistanceX", -1, 1, 0, 3, Q("5 mm")),
    Sketcher.Constraint("DistanceY", 1, 3, 0, 3, Q("50.5 mm")),
])
sketch19.setExpression("Constraints[6]", "Params.sketch19_diameter")
pocket12 = doc.addObject("PartDesign::Pocket", "Pocket011")
body.addObject(pocket12)
pocket12.Profile = sketch19
pocket12.setExpression("Length", "Params.pocket12_length")
pocket12.Reversed = True

sketch20 = doc.addObject("Sketcher::SketchObject", "Sketch019")
body.addObject(sketch20)
sketch20.AttachmentSupport = (doc.YZ_Plane, [""])
sketch20.MapMode = "FlatFace"
sketch20.AttachmentOffset = App.Placement(App.Vector(0, 0, -25), App.Rotation())
sketch20.addGeometry([
    Part.LineSegment(App.Vector(33.09, -19.05, 0), App.Vector(0, -19.05, 0)),
    Part.LineSegment(App.Vector(0, -19.05, 0), App.Vector(0, -11.43, 0)),
    Part.LineSegment(App.Vector(0, -11.43, 0), App.Vector(33.09, -11.43, 0)),
    Part.LineSegment(App.Vector(33.09, -11.43, 0), App.Vector(33.09, -19.05, 0)),
    Part.LineSegment(App.Vector(33.09, 11.43, 0), App.Vector(0, 11.43, 0)),
    Part.LineSegment(App.Vector(0, 11.43, 0), App.Vector(0, 19.05, 0)),
    Part.LineSegment(App.Vector(0, 19.05, 0), App.Vector(33.09, 19.05, 0)),
    Part.LineSegment(App.Vector(33.09, 19.05, 0), App.Vector(33.09, 11.43, 0)),
], False)
sketch20.addConstraint([
    Sketcher.Constraint("Coincident", 0, 2, 1, 1),
    Sketcher.Constraint("Coincident", 1, 2, 2, 1),
    Sketcher.Constraint("Coincident", 2, 2, 3, 1),
    Sketcher.Constraint("Coincident", 3, 2, 0, 1),
    Sketcher.Constraint("Coincident", 4, 2, 5, 1),
    Sketcher.Constraint("Coincident", 5, 2, 6, 1),
    Sketcher.Constraint("Coincident", 6, 2, 7, 1),
    Sketcher.Constraint("Coincident", 7, 2, 4, 1),
    Sketcher.Constraint("Horizontal", 0),
    Sketcher.Constraint("Vertical", 1),
    Sketcher.Constraint("Horizontal", 2),
    Sketcher.Constraint("Vertical", 3),
    Sketcher.Constraint("Horizontal", 4),
    Sketcher.Constraint("Vertical", 5),
    Sketcher.Constraint("Horizontal", 6),
    Sketcher.Constraint("Vertical", 7),
    Sketcher.Constraint("Symmetric", 1, 2, 4, 2, -1, 1),
    Sketcher.Constraint("Symmetric", 0, 2, 5, 2, -1),
    Sketcher.Constraint("Vertical", 3, 2, 6, 2),
    Sketcher.Constraint("DistanceX", 0, 2, 0, 1, Q("33.09 mm")),
    Sketcher.Constraint("DistanceY", 1, 1, 1, 2, Q("7.62 mm")),
    Sketcher.Constraint("DistanceY", 0, 2, 5, 2, Q("38.1 mm")),
])
sketch20.setExpression("Constraints[19]", "Params.sketch20_width")
sketch20.setExpression("Constraints[20]", "Params.sketch20_height")
pad8 = doc.addObject("PartDesign::Pad", "Pad007")
body.addObject(pad8)
pad8.Profile = sketch20
pad8.setExpression("Length", "Params.pad8_length")
pad8.Reversed = True

sketch21 = doc.addObject("Sketcher::SketchObject", "Sketch020")
body.addObject(sketch21)
sketch21.AttachmentSupport = (doc.XY_Plane, [""])
sketch21.MapMode = "FlatFace"
sketch21.AttachmentOffset = App.Placement(App.Vector(0, 0, -11.43), App.Rotation())
sketch21.addGeometry([
    Part.LineSegment(App.Vector(-31.35, 33.09, 0), App.Vector(-31.35, 0, 0)),
    Part.LineSegment(App.Vector(-31.35, 0, 0), App.Vector(-28.175, 0, 0)),
    Part.LineSegment(App.Vector(-28.175, 0, 0), App.Vector(-28.175, 33.09, 0)),
    Part.LineSegment(App.Vector(-28.175, 33.09, 0), App.Vector(-31.35, 33.09, 0)),
], False)
sketch21.addConstraint([
    Sketcher.Constraint("Coincident", 0, 2, 1, 1),
    Sketcher.Constraint("Coincident", 1, 2, 2, 1),
    Sketcher.Constraint("Coincident", 2, 2, 3, 1),
    Sketcher.Constraint("Coincident", 3, 2, 0, 1),
    Sketcher.Constraint("Vertical", 0),
    Sketcher.Constraint("Horizontal", 1),
    Sketcher.Constraint("Vertical", 2),
    Sketcher.Constraint("Horizontal", 3),
    Sketcher.Constraint("PointOnObject", 0, 2, -1),
    Sketcher.Constraint("DistanceY", 0, 2, 0, 1, Q("33.09 mm")),
    Sketcher.Constraint("DistanceX", 1, 1, 1, 2, Q("3.175 mm")),
    Sketcher.Constraint("DistanceX", 0, 2, -1, 1, Q("31.35 mm")),
])
sketch21.setExpression("Constraints[9]", "Params.sketch21_height")
pad9 = doc.addObject("PartDesign::Pad", "Pad008")
body.addObject(pad9)
pad9.Profile = sketch21
pad9.setExpression("Length", "Params.pad9_length")

sketch22 = doc.addObject("Sketcher::SketchObject", "Sketch021")
body.addObject(sketch22)
sketch22.AttachmentSupport = (doc.XY_Plane, [""])
sketch22.MapMode = "FlatFace"
sketch22.AttachmentOffset = App.Placement(App.Vector(0, 0, 11.43), App.Rotation())
sketch22.addGeometry([
    Part.LineSegment(App.Vector(-28.175, 33.09, 0), App.Vector(-28.175, 0, 0)),
    Part.LineSegment(App.Vector(-28.175, 0, 0), App.Vector(-31.35, 0, 0)),
    Part.LineSegment(App.Vector(-31.35, 0, 0), App.Vector(-31.35, 33.09, 0)),
    Part.LineSegment(App.Vector(-31.35, 33.09, 0), App.Vector(-28.175, 33.09, 0)),
], False)
sketch22.addConstraint([
    Sketcher.Constraint("Coincident", 0, 2, 1, 1),
    Sketcher.Constraint("Coincident", 1, 2, 2, 1),
    Sketcher.Constraint("Coincident", 2, 2, 3, 1),
    Sketcher.Constraint("Coincident", 3, 2, 0, 1),
    Sketcher.Constraint("Vertical", 0),
    Sketcher.Constraint("Horizontal", 1),
    Sketcher.Constraint("Vertical", 2),
    Sketcher.Constraint("Horizontal", 3),
    Sketcher.Constraint("PointOnObject", 0, 2, -1),
    Sketcher.Constraint("DistanceY", 0, 2, 0, 1, Q("33.09 mm")),
    Sketcher.Constraint("DistanceX", 1, 2, 1, 1, Q("3.175 mm")),
    Sketcher.Constraint("DistanceX", 1, 2, -1, 1, Q("31.35 mm")),
])
sketch22.setExpression("Constraints[9]", "Params.sketch22_height")
pad10 = doc.addObject("PartDesign::Pad", "Pad009")
body.addObject(pad10)
pad10.Profile = sketch22
pad10.setExpression("Length", "Params.pad10_length")
pad10.Reversed = True

sketch23 = doc.addObject("Sketcher::SketchObject", "Sketch022")
body.addObject(sketch23)
sketch23.AttachmentSupport = (doc.XZ_Plane, [""])
sketch23.MapMode = "FlatFace"
sketch23.addGeometry(Part.Circle(App.Vector(0, 0, 0), App.Vector(0, 0, 1), 11.5), False)
sketch23.addConstraint([
    Sketcher.Constraint("Coincident", 0, 3, -1, 1),
    Sketcher.Constraint("Diameter", 0, Q("23 mm")),
])
sketch23.setExpression("Constraints[1]", "Params.sketch23_diameter")
pocket13 = doc.addObject("PartDesign::Pocket", "Pocket012")
body.addObject(pocket13)
pocket13.Profile = sketch23
pocket13.Type = "UpToFirst"

sketch24 = doc.addObject("Sketcher::SketchObject", "Sketch023")
body.addObject(sketch24)
sketch24.AttachmentSupport = (doc.YZ_Plane, [""])
sketch24.MapMode = "FlatFace"
sketch24.AttachmentOffset = App.Placement(App.Vector(0, 0, -15.5), App.Rotation())
sketch24.addGeometry([
    Part.LineSegment(App.Vector(3, 15.5, 0), App.Vector(0, 15.5, 0)),
    Part.LineSegment(App.Vector(0, 15.5, 0), App.Vector(0, 12.35, 0)),
    Part.LineSegment(App.Vector(0, 12.35, 0), App.Vector(1.45, 13.8, 0)),
    Part.LineSegment(App.Vector(1.45, 13.8, 0), App.Vector(3, 13.8, 0)),
    Part.LineSegment(App.Vector(3, 13.8, 0), App.Vector(3, 15.5, 0)),
], False)
sketch24.addGeometry(Part.LineSegment(App.Vector(0, 15.5, 0), App.Vector(3, 15.5, 0)), True)
sketch24.addConstraint([
    Sketcher.Constraint("Coincident", 0, 2, 1, 1),
    Sketcher.Constraint("Coincident", 1, 2, 2, 1),
    Sketcher.Constraint("Coincident", 2, 2, 3, 1),
    Sketcher.Constraint("Coincident", 3, 2, 4, 1),
    Sketcher.Constraint("Coincident", 4, 2, 0, 1),
    Sketcher.Constraint("Horizontal", 0),
    Sketcher.Constraint("Vertical", 1),
    Sketcher.Constraint("Horizontal", 3),
    Sketcher.Constraint("Vertical", 4),
    Sketcher.Constraint("Horizontal", 5),
    Sketcher.Constraint("Coincident", 5, 1, 0, 2),
    Sketcher.Constraint("PointOnObject", 0, 2, -2),
    Sketcher.Constraint("Vertical", 3, 2, 5, 2),
    Sketcher.Constraint("DistanceX", 0, 2, 0, 1, Q("3 mm")),
    Sketcher.Constraint("Angle", 2, Q("45 deg")),
    Sketcher.Constraint("DistanceY", 4, 1, 4, 2, Q("1.7 mm")),
    Sketcher.Constraint("DistanceX", 3, 1, 3, 2, Q("1.55 mm")),
    Sketcher.Constraint("DistanceY", -1, 1, 0, 2, Q("15.5 mm")),
])
sketch24.setExpression("Constraints[13]", "Params.sketch24_width")
sketch24.setExpression("Constraints[15]", "Params.sketch24_height")
sketch24.setExpression("Constraints[16]", "Params.sketch24_width2")
groove = doc.addObject("PartDesign::Groove", "Groove")
body.addObject(groove)
groove.Profile = sketch24
groove.ReferenceAxis = (sketch24, ["Axis0"])
groove.setExpression("Angle", "Params.groove_angle")
doc.recompute()

linearpattern = doc.addObject("PartDesign::LinearPattern", "LinearPattern")
body.addObject(linearpattern)
linearpattern.Originals = [groove]
linearpattern.Direction = (doc.X_Axis, [""])
linearpattern.Mode = "offset"
linearpattern.setExpression("Offset", "Params.linearpattern_pitch")
linearpattern.Occurrences = 2
body.Tip = linearpattern
doc.recompute()

datumline = doc.addObject("PartDesign::Line", "DatumLine")
body.addObject(datumline)
datumline.Placement = App.Placement(App.Vector(0, 0, 0), App.Rotation(App.Vector(0, 0, 1), App.Vector(0.707106781, 0, -0.707106781)))
linearpattern2 = doc.addObject("PartDesign::LinearPattern", "LinearPattern001")
body.addObject(linearpattern2)
linearpattern2.Originals = [groove]
linearpattern2.Direction = (datumline, [""])
linearpattern2.Mode = "offset"
linearpattern2.setExpression("Offset", "Params.linearpattern2_pitch")
linearpattern2.Occurrences = 2
body.Tip = linearpattern2
doc.recompute()

linearpattern3 = doc.addObject("PartDesign::LinearPattern", "LinearPattern002")
body.addObject(linearpattern3)
linearpattern3.Originals = [groove]
linearpattern3.Direction = (doc.Z_Axis, [""])
linearpattern3.Mode = "offset"
linearpattern3.setExpression("Offset", "Params.linearpattern3_pitch")
linearpattern3.Occurrences = 2
linearpattern3.Reversed = True
body.Tip = linearpattern3
doc.recompute()

mirrored3 = doc.addObject("PartDesign::Mirrored", "Mirrored002")
body.addObject(mirrored3)
mirrored3.Originals = [pocket11, pad8, pad9, pad10]
mirrored3.MirrorPlane = (doc.YZ_Plane, [""])
body.Tip = mirrored3

doc.recompute()
